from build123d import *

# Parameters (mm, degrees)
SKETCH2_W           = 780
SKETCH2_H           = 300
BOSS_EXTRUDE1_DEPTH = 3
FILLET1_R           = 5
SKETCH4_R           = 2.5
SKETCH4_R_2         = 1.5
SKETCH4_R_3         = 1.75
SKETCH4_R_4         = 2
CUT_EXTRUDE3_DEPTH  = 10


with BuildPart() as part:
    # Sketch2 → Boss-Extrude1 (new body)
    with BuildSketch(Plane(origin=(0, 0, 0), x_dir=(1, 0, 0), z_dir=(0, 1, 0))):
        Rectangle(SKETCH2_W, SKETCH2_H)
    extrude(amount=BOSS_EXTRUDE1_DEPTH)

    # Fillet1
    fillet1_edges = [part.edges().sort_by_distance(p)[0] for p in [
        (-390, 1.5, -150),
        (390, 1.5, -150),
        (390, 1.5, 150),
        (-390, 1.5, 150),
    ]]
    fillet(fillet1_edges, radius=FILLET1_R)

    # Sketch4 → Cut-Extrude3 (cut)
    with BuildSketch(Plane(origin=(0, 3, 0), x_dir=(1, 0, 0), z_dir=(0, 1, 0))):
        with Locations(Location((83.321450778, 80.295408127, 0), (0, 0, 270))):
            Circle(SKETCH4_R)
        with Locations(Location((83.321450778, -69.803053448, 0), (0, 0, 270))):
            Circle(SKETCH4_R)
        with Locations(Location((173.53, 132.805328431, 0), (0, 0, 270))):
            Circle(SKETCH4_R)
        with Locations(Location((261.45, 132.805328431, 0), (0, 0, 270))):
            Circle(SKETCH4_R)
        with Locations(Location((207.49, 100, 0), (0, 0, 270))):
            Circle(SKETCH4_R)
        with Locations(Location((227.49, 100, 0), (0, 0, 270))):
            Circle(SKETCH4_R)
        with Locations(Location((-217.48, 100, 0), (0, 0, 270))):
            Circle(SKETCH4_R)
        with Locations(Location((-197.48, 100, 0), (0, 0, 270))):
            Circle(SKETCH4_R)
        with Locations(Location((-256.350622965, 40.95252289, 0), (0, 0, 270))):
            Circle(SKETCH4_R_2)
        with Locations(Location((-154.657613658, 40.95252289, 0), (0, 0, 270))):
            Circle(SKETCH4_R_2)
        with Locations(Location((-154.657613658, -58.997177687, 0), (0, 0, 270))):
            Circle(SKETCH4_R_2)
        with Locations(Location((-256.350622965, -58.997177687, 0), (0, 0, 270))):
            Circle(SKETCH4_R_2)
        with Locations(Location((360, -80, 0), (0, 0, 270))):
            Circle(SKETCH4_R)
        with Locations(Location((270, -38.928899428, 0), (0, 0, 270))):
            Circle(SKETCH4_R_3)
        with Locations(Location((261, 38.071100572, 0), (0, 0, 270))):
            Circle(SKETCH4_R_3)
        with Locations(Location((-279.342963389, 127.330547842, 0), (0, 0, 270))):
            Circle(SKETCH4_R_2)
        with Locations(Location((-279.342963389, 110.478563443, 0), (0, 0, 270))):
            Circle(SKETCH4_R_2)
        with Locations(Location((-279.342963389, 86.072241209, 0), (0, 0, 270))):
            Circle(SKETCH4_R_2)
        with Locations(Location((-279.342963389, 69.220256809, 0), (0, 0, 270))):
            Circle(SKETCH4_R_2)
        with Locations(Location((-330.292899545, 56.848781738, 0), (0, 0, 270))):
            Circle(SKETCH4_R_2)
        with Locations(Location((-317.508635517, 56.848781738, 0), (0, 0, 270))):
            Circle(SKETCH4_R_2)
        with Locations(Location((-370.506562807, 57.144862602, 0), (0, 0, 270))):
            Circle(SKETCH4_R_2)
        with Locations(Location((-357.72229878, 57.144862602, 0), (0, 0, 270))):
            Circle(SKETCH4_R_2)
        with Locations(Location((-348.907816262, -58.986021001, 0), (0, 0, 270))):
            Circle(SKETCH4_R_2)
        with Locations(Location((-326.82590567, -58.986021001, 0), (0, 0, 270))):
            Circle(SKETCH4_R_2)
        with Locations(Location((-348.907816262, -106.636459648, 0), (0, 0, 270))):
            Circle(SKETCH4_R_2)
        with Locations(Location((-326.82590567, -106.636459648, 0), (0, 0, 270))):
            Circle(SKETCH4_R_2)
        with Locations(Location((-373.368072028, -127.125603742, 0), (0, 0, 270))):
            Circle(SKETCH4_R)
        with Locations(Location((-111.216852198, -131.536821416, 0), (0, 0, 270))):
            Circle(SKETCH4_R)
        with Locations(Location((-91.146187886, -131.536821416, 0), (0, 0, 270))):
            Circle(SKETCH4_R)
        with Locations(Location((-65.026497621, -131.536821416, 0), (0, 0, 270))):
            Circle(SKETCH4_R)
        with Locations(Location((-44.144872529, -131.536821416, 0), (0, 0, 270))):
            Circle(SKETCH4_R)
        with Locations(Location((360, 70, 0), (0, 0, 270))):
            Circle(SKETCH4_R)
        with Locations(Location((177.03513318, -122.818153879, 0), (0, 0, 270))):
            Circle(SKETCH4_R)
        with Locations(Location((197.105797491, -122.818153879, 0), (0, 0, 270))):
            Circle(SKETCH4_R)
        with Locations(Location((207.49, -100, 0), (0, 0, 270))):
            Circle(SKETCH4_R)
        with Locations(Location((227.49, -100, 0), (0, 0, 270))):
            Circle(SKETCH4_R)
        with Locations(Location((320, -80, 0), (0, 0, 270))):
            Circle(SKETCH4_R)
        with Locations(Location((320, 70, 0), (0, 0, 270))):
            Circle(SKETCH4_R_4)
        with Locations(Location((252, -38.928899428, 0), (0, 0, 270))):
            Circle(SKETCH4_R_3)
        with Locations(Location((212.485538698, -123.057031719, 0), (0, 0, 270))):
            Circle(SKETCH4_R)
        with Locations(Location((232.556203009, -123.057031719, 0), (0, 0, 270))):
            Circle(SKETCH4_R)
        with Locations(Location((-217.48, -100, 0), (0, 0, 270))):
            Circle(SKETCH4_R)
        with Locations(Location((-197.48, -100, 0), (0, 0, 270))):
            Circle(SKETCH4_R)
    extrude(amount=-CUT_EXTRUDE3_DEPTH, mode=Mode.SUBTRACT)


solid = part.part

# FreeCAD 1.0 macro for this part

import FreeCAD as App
import Part
import Sketcher
from FreeCAD import Vector
Q = App.Units.Quantity


def edges_at(feature, points):
    """Names of the edges that pass closest to the given points."""
    edges = feature.Shape.Edges
    near = lambda p: min(range(len(edges)), key=lambda i: edges[i].distToShape(Part.Vertex(*p))[0])
    return sorted({f"Edge{near(p) + 1}" for p in points})

doc = App.newDocument("Part")
body = doc.addObject("PartDesign::Body", "Body")

# Sketch on XZ plane
sketch1 = body.newObject("Sketcher::SketchObject", "Sketch")
sketch1.AttachmentSupport = (doc.getObject("XZ_Plane"), [""])
sketch1.MapMode = "FlatFace"
sketch1.addGeometry(Part.LineSegment(Vector(-390, -150, 0), Vector(-390, 150, 0)), False)
sketch1.addGeometry(Part.LineSegment(Vector(-390, 150, 0), Vector(390, 150, 0)), False)
sketch1.addGeometry(Part.LineSegment(Vector(390, 150, 0), Vector(390, -150, 0)), False)
sketch1.addGeometry(Part.LineSegment(Vector(390, -150, 0), Vector(-390, -150, 0)), False)
sketch1.addConstraint(Sketcher.Constraint("Coincident", 0, 2, 1, 1))
sketch1.addConstraint(Sketcher.Constraint("Coincident", 1, 2, 2, 1))
sketch1.addConstraint(Sketcher.Constraint("Coincident", 2, 2, 3, 1))
sketch1.addConstraint(Sketcher.Constraint("Coincident", 3, 2, 0, 1))
sketch1.addConstraint(Sketcher.Constraint("Vertical", 0))
sketch1.addConstraint(Sketcher.Constraint("Horizontal", 1))
sketch1.addConstraint(Sketcher.Constraint("Vertical", 2))
sketch1.addConstraint(Sketcher.Constraint("Horizontal", 3))
sketch1.addConstraint(Sketcher.Constraint("Symmetric", 0, 2, 2, 2, -1, 1))
sketch1.addConstraint(Sketcher.Constraint("DistanceX", 1, 1, 1, 2, Q("780 mm")))
sketch1.addConstraint(Sketcher.Constraint("DistanceY", 0, 1, 0, 2, Q("300 mm")))
pad1 = body.newObject("PartDesign::Pad", "Pad")
pad1.Profile = sketch1
pad1.Length = 3
pad1.Reversed = True
doc.recompute()

fillet = body.newObject("PartDesign::Fillet", "Fillet")
fillet.Base = (pad1, edges_at(pad1, [
    (-390, 1.5, -150),
    (390, 1.5, -150),
    (390, 1.5, 150),
    (-390, 1.5, 150),
]))
fillet.Radius = 5

# Sketch on XZ plane
sketch2 = body.newObject("Sketcher::SketchObject", "Sketch001")
sketch2.AttachmentSupport = (doc.getObject("XZ_Plane"), [""])
sketch2.MapMode = "FlatFace"
sketch2.AttachmentOffset = App.Placement(Vector(0, 0, -3), App.Rotation())
sketch2.addGeometry(Part.Circle(Vector(83.3, -80.3, 0), Vector(0, 0, 1), 2.5), False)
sketch2.addGeometry(Part.Circle(Vector(83.3, 69.8, 0), Vector(0, 0, 1), 2.5), False)
sketch2.addGeometry(Part.Circle(Vector(173.5, -132.8, 0), Vector(0, 0, 1), 2.5), False)
sketch2.addGeometry(Part.Circle(Vector(261.4, -132.8, 0), Vector(0, 0, 1), 2.5), False)
sketch2.addGeometry(Part.Circle(Vector(207.5, -100, 0), Vector(0, 0, 1), 2.5), False)
sketch2.addGeometry(Part.Circle(Vector(227.5, -100, 0), Vector(0, 0, 1), 2.5), False)
sketch2.addGeometry(Part.Circle(Vector(-217.5, -100, 0), Vector(0, 0, 1), 2.5), False)
sketch2.addGeometry(Part.Circle(Vector(-197.5, -100, 0), Vector(0, 0, 1), 2.5), False)
sketch2.addGeometry(Part.Circle(Vector(-256.4, -41, 0), Vector(0, 0, 1), 1.5), False)
sketch2.addGeometry(Part.Circle(Vector(-154.7, -41, 0), Vector(0, 0, 1), 1.5), False)
sketch2.addGeometry(Part.Circle(Vector(-154.7, 59, 0), Vector(0, 0, 1), 1.5), False)
sketch2.addGeometry(Part.Circle(Vector(-256.4, 59, 0), Vector(0, 0, 1), 1.5), False)
sketch2.addGeometry(Part.Circle(Vector(360, 80, 0), Vector(0, 0, 1), 2.5), False)
sketch2.addGeometry(Part.Circle(Vector(270, 38.9, 0), Vector(0, 0, 1), 1.8), False)
sketch2.addGeometry(Part.Circle(Vector(261, -38.1, 0), Vector(0, 0, 1), 1.8), False)
sketch2.addGeometry(Part.Circle(Vector(-279.3, -127.3, 0), Vector(0, 0, 1), 1.5), False)
sketch2.addGeometry(Part.Circle(Vector(-279.3, -110.5, 0), Vector(0, 0, 1), 1.5), False)
sketch2.addGeometry(Part.Circle(Vector(-279.3, -86.1, 0), Vector(0, 0, 1), 1.5), False)
sketch2.addGeometry(Part.Circle(Vector(-279.3, -69.2, 0), Vector(0, 0, 1), 1.5), False)
sketch2.addGeometry(Part.Circle(Vector(-330.3, -56.8, 0), Vector(0, 0, 1), 1.5), False)
sketch2.addGeometry(Part.Circle(Vector(-317.5, -56.8, 0), Vector(0, 0, 1), 1.5), False)
sketch2.addGeometry(Part.Circle(Vector(-370.5, -57.1, 0), Vector(0, 0, 1), 1.5), False)
sketch2.addGeometry(Part.Circle(Vector(-357.7, -57.1, 0), Vector(0, 0, 1), 1.5), False)
sketch2.addGeometry(Part.Circle(Vector(-348.9, 59, 0), Vector(0, 0, 1), 1.5), False)
sketch2.addGeometry(Part.Circle(Vector(-326.8, 59, 0), Vector(0, 0, 1), 1.5), False)
sketch2.addGeometry(Part.Circle(Vector(-348.9, 106.6, 0), Vector(0, 0, 1), 1.5), False)
sketch2.addGeometry(Part.Circle(Vector(-326.8, 106.6, 0), Vector(0, 0, 1), 1.5), False)
sketch2.addGeometry(Part.Circle(Vector(-373.4, 127.1, 0), Vector(0, 0, 1), 2.5), False)
sketch2.addGeometry(Part.Circle(Vector(-111.2, 131.5, 0), Vector(0, 0, 1), 2.5), False)
sketch2.addGeometry(Part.Circle(Vector(-91.1, 131.5, 0), Vector(0, 0, 1), 2.5), False)
sketch2.addGeometry(Part.Circle(Vector(-65, 131.5, 0), Vector(0, 0, 1), 2.5), False)
sketch2.addGeometry(Part.Circle(Vector(-44.1, 131.5, 0), Vector(0, 0, 1), 2.5), False)
sketch2.addGeometry(Part.Circle(Vector(360, -70, 0), Vector(0, 0, 1), 2.5), False)
sketch2.addGeometry(Part.Circle(Vector(177, 122.8, 0), Vector(0, 0, 1), 2.5), False)
sketch2.addGeometry(Part.Circle(Vector(197.1, 122.8, 0), Vector(0, 0, 1), 2.5), False)
sketch2.addGeometry(Part.Circle(Vector(207.5, 100, 0), Vector(0, 0, 1), 2.5), False)
sketch2.addGeometry(Part.Circle(Vector(227.5, 100, 0), Vector(0, 0, 1), 2.5), False)
sketch2.addGeometry(Part.Circle(Vector(320, 80, 0), Vector(0, 0, 1), 2.5), False)
sketch2.addGeometry(Part.Circle(Vector(320, -70, 0), Vector(0, 0, 1), 2), False)
sketch2.addGeometry(Part.Circle(Vector(252, 38.9, 0), Vector(0, 0, 1), 1.8), False)
sketch2.addGeometry(Part.Circle(Vector(212.5, 123.1, 0), Vector(0, 0, 1), 2.5), False)
sketch2.addGeometry(Part.Circle(Vector(232.6, 123.1, 0), Vector(0, 0, 1), 2.5), False)
sketch2.addGeometry(Part.Circle(Vector(-217.5, 100, 0), Vector(0, 0, 1), 2.5), False)
sketch2.addGeometry(Part.Circle(Vector(-197.5, 100, 0), Vector(0, 0, 1), 2.5), False)
sketch2.addConstraint(Sketcher.Constraint("Equal", 0, 1))
sketch2.addConstraint(Sketcher.Constraint("Equal", 1, 2))
sketch2.addConstraint(Sketcher.Constraint("Equal", 2, 3))
sketch2.addConstraint(Sketcher.Constraint("Equal", 3, 4))
sketch2.addConstraint(Sketcher.Constraint("Equal", 4, 5))
sketch2.addConstraint(Sketcher.Constraint("Equal", 5, 6))
sketch2.addConstraint(Sketcher.Constraint("Equal", 6, 7))
sketch2.addConstraint(Sketcher.Constraint("Equal", 8, 9))
sketch2.addConstraint(Sketcher.Constraint("Equal", 9, 10))
sketch2.addConstraint(Sketcher.Constraint("Equal", 10, 11))
sketch2.addConstraint(Sketcher.Constraint("Equal", 7, 12))
sketch2.addConstraint(Sketcher.Constraint("Equal", 13, 14))
sketch2.addConstraint(Sketcher.Constraint("Equal", 11, 15))
sketch2.addConstraint(Sketcher.Constraint("Equal", 15, 16))
sketch2.addConstraint(Sketcher.Constraint("Equal", 16, 17))
sketch2.addConstraint(Sketcher.Constraint("Equal", 17, 18))
sketch2.addConstraint(Sketcher.Constraint("Equal", 18, 19))
sketch2.addConstraint(Sketcher.Constraint("Equal", 19, 20))
sketch2.addConstraint(Sketcher.Constraint("Equal", 20, 21))
sketch2.addConstraint(Sketcher.Constraint("Equal", 21, 22))
sketch2.addConstraint(Sketcher.Constraint("Equal", 22, 23))
sketch2.addConstraint(Sketcher.Constraint("Equal", 23, 24))
sketch2.addConstraint(Sketcher.Constraint("Equal", 24, 25))
sketch2.addConstraint(Sketcher.Constraint("Equal", 25, 26))
sketch2.addConstraint(Sketcher.Constraint("Equal", 12, 27))
sketch2.addConstraint(Sketcher.Constraint("Equal", 27, 28))
sketch2.addConstraint(Sketcher.Constraint("Equal", 28, 29))
sketch2.addConstraint(Sketcher.Constraint("Equal", 29, 30))
sketch2.addConstraint(Sketcher.Constraint("Equal", 30, 31))
sketch2.addConstraint(Sketcher.Constraint("Equal", 31, 32))
sketch2.addConstraint(Sketcher.Constraint("Equal", 32, 33))
sketch2.addConstraint(Sketcher.Constraint("Equal", 33, 34))
sketch2.addConstraint(Sketcher.Constraint("Equal", 34, 35))
sketch2.addConstraint(Sketcher.Constraint("Equal", 35, 36))
sketch2.addConstraint(Sketcher.Constraint("Equal", 36, 37))
sketch2.addConstraint(Sketcher.Constraint("Equal", 14, 39))
sketch2.addConstraint(Sketcher.Constraint("Equal", 37, 40))
sketch2.addConstraint(Sketcher.Constraint("Equal", 40, 41))
sketch2.addConstraint(Sketcher.Constraint("Equal", 41, 42))
sketch2.addConstraint(Sketcher.Constraint("Equal", 42, 43))
sketch2.addConstraint(Sketcher.Constraint("Symmetric", 4, 3, 35, 3, -1))
sketch2.addConstraint(Sketcher.Constraint("Symmetric", 5, 3, 36, 3, -1))
sketch2.addConstraint(Sketcher.Constraint("Symmetric", 6, 3, 42, 3, -1))
sketch2.addConstraint(Sketcher.Constraint("Symmetric", 7, 3, 43, 3, -1))
sketch2.addConstraint(Sketcher.Constraint("Horizontal", 2, 3, 3, 3))
sketch2.addConstraint(Sketcher.Constraint("Horizontal", 4, 3, 5, 3))
sketch2.addConstraint(Sketcher.Constraint("Horizontal", 5, 3, 6, 3))
sketch2.addConstraint(Sketcher.Constraint("Horizontal", 6, 3, 7, 3))
sketch2.addConstraint(Sketcher.Constraint("Horizontal", 8, 3, 9, 3))
sketch2.addConstraint(Sketcher.Constraint("Horizontal", 10, 3, 11, 3))
sketch2.addConstraint(Sketcher.Constraint("Horizontal", 19, 3, 20, 3))
sketch2.addConstraint(Sketcher.Constraint("Horizontal", 21, 3, 22, 3))
sketch2.addConstraint(Sketcher.Constraint("Horizontal", 23, 3, 24, 3))
sketch2.addConstraint(Sketcher.Constraint("Horizontal", 25, 3, 26, 3))
sketch2.addConstraint(Sketcher.Constraint("Horizontal", 28, 3, 29, 3))
sketch2.addConstraint(Sketcher.Constraint("Horizontal", 29, 3, 30, 3))
sketch2.addConstraint(Sketcher.Constraint("Horizontal", 30, 3, 31, 3))
sketch2.addConstraint(Sketcher.Constraint("Horizontal", 33, 3, 34, 3))
sketch2.addConstraint(Sketcher.Constraint("Horizontal", 12, 3, 37, 3))
sketch2.addConstraint(Sketcher.Constraint("Horizontal", 32, 3, 38, 3))
sketch2.addConstraint(Sketcher.Constraint("Horizontal", 13, 3, 39, 3))
sketch2.addConstraint(Sketcher.Constraint("Horizontal", 40, 3, 41, 3))
sketch2.addConstraint(Sketcher.Constraint("Vertical", 0, 3, 1, 3))
sketch2.addConstraint(Sketcher.Constraint("Vertical", 9, 3, 10, 3))
sketch2.addConstraint(Sketcher.Constraint("Vertical", 8, 3, 11, 3))
sketch2.addConstraint(Sketcher.Constraint("Vertical", 15, 3, 16, 3))
sketch2.addConstraint(Sketcher.Constraint("Vertical", 16, 3, 17, 3))
sketch2.addConstraint(Sketcher.Constraint("Vertical", 17, 3, 18, 3))
sketch2.addConstraint(Sketcher.Constraint("Vertical", 23, 3, 25, 3))
sketch2.addConstraint(Sketcher.Constraint("Vertical", 24, 3, 26, 3))
sketch2.addConstraint(Sketcher.Constraint("Vertical", 12, 3, 32, 3))
sketch2.addConstraint(Sketcher.Constraint("Vertical", 37, 3, 38, 3))
sketch2.addConstraint(Sketcher.Constraint("Diameter", 0, Q("5 mm")))
sketch2.addConstraint(Sketcher.Constraint("Diameter", 8, Q("3 mm")))
sketch2.addConstraint(Sketcher.Constraint("Diameter", 38, Q("4 mm")))
sketch2.addConstraint(Sketcher.Constraint("Diameter", 13, Q("3.5 mm")))
sketch2.addConstraint(Sketcher.Constraint("DistanceY", 4, 3, -1, 1, Q("100 mm")))
sketch2.addConstraint(Sketcher.Constraint("DistanceX", -1, 1, 12, 3, Q("360 mm")))
sketch2.addConstraint(Sketcher.Constraint("DistanceY", -1, 1, 12, 3, Q("80 mm")))
sketch2.addConstraint(Sketcher.Constraint("DistanceX", -1, 1, 13, 3, Q("270 mm")))
sketch2.addConstraint(Sketcher.Constraint("DistanceX", -1, 1, 14, 3, Q("261 mm")))
sketch2.addConstraint(Sketcher.Constraint("DistanceY", 32, 3, -1, 1, Q("70 mm")))
sketch2.addConstraint(Sketcher.Constraint("DistanceX", -1, 1, 37, 3, Q("320 mm")))
sketch2.addConstraint(Sketcher.Constraint("DistanceX", -1, 1, 39, 3, Q("252 mm")))
sketch2.addConstraint(Sketcher.Constraint("DistanceX", 4, 3, 5, 3, Q("20 mm")))
sketch2.addConstraint(Sketcher.Constraint("DistanceX", 6, 3, 7, 3, Q("20 mm")))
sketch2.addConstraint(Sketcher.Constraint("DistanceY", 14, 3, 13, 3, Q("77 mm")))
sketch2.addConstraint(Sketcher.Constraint("DistanceX", -1, 1, 2, 3, Q("173.53 mm")))
sketch2.addConstraint(Sketcher.Constraint("DistanceX", -1, 1, 3, 3, Q("261.45 mm")))
sketch2.addConstraint(Sketcher.Constraint("DistanceX", -1, 1, 4, 3, Q("207.49 mm")))
sketch2.addConstraint(Sketcher.Constraint("DistanceX", 6, 3, -1, 1, Q("217.48 mm")))
sketch2.addConstraint(Sketcher.Constraint("DistanceY", -1, 1, 13, 3, Q("38.928899 mm")))
sketch2.addConstraint(Sketcher.Constraint("DistanceX", 19, 3, -1, 1, Q("330.2929 mm")))
sketch2.addConstraint(Sketcher.Constraint("DistanceX", 22, 3, -1, 1, Q("357.722299 mm")))
sketch2.addConstraint(Sketcher.Constraint("DistanceY", 9, 3, 10, 3, Q("99.949701 mm")))
sketch2.addConstraint(Sketcher.Constraint("DistanceX", 21, 3, 18, 3, Q("91.163599 mm")))
sketch2.addConstraint(Sketcher.Constraint("DistanceY", 16, 3, 21, 3, Q("53.333701 mm")))
sketch2.addConstraint(Sketcher.Constraint("DistanceY", 1, 3, 33, 3, Q("53.0151 mm")))
sketch2.addConstraint(Sketcher.Constraint("DistanceX", -1, 1, 0, 3, Q("83.321451 mm")))
sketch2.addConstraint(Sketcher.Constraint("DistanceY", 0, 3, -1, 1, Q("80.295408 mm")))
sketch2.addConstraint(Sketcher.Constraint("DistanceY", 2, 3, -1, 1, Q("132.805328 mm")))
sketch2.addConstraint(Sketcher.Constraint("DistanceY", 17, 3, -1, 1, Q("86.072241 mm")))
sketch2.addConstraint(Sketcher.Constraint("DistanceY", 19, 3, -1, 1, Q("56.848782 mm")))
sketch2.addConstraint(Sketcher.Constraint("DistanceY", -1, 1, 23, 3, Q("58.986021 mm")))
sketch2.addConstraint(Sketcher.Constraint("DistanceY", -1, 1, 25, 3, Q("106.63646 mm")))
sketch2.addConstraint(Sketcher.Constraint("DistanceY", -1, 1, 28, 3, Q("131.536821 mm")))
sketch2.addConstraint(Sketcher.Constraint("DistanceX", -1, 1, 40, 3, Q("212.485539 mm")))
sketch2.addConstraint(Sketcher.Constraint("DistanceY", -1, 1, 40, 3, Q("123.057032 mm")))
sketch2.addConstraint(Sketcher.Constraint("DistanceY", 0, 3, 1, 3, Q("150.098462 mm")))
sketch2.addConstraint(Sketcher.Constraint("DistanceX", 8, 3, 9, 3, Q("101.693009 mm")))
sketch2.addConstraint(Sketcher.Constraint("DistanceX", 15, 3, 8, 3, Q("22.99234 mm")))
sketch2.addConstraint(Sketcher.Constraint("DistanceY", 16, 3, 8, 3, Q("69.526041 mm")))
sketch2.addConstraint(Sketcher.Constraint("DistanceY", 17, 3, 8, 3, Q("45.119718 mm")))
sketch2.addConstraint(Sketcher.Constraint("DistanceY", 15, 3, 18, 3, Q("58.110291 mm")))
sketch2.addConstraint(Sketcher.Constraint("DistanceX", 23, 3, 20, 3, Q("31.399181 mm")))
sketch2.addConstraint(Sketcher.Constraint("DistanceX", 23, 3, 24, 3, Q("22.081911 mm")))
sketch2.addConstraint(Sketcher.Constraint("DistanceX", 27, 3, 11, 3, Q("117.017449 mm")))
sketch2.addConstraint(Sketcher.Constraint("DistanceX", 10, 3, 28, 3, Q("43.440761 mm")))
sketch2.addConstraint(Sketcher.Constraint("DistanceX", 29, 3, 1, 3, Q("174.467639 mm")))
sketch2.addConstraint(Sketcher.Constraint("DistanceX", 29, 3, 30, 3, Q("26.11969 mm")))
sketch2.addConstraint(Sketcher.Constraint("DistanceX", 28, 3, 31, 3, Q("67.07198 mm")))
sketch2.addConstraint(Sketcher.Constraint("DistanceX", 34, 3, 40, 3, Q("15.379741 mm")))
sketch2.addConstraint(Sketcher.Constraint("DistanceX", 33, 3, 41, 3, Q("55.52107 mm")))
sketch2.addConstraint(Sketcher.Constraint("DistanceX", 8, 3, -1, 1, Q("256.350623 mm")))
sketch2.addConstraint(Sketcher.Constraint("DistanceY", 15, 3, -1, 1, Q("127.330548 mm")))
sketch2.addConstraint(Sketcher.Constraint("DistanceX", 20, 3, -1, 1, Q("317.508636 mm")))
sketch2.addConstraint(Sketcher.Constraint("DistanceY", -1, 1, 27, 3, Q("127.125604 mm")))
sketch2.addConstraint(Sketcher.Constraint("DistanceX", -1, 1, 33, 3, Q("177.035133 mm")))
pocket1 = body.newObject("PartDesign::Pocket", "Pocket")
pocket1.Profile = sketch2
pocket1.Length = 10
pocket1.Reversed = True

doc.recompute()
